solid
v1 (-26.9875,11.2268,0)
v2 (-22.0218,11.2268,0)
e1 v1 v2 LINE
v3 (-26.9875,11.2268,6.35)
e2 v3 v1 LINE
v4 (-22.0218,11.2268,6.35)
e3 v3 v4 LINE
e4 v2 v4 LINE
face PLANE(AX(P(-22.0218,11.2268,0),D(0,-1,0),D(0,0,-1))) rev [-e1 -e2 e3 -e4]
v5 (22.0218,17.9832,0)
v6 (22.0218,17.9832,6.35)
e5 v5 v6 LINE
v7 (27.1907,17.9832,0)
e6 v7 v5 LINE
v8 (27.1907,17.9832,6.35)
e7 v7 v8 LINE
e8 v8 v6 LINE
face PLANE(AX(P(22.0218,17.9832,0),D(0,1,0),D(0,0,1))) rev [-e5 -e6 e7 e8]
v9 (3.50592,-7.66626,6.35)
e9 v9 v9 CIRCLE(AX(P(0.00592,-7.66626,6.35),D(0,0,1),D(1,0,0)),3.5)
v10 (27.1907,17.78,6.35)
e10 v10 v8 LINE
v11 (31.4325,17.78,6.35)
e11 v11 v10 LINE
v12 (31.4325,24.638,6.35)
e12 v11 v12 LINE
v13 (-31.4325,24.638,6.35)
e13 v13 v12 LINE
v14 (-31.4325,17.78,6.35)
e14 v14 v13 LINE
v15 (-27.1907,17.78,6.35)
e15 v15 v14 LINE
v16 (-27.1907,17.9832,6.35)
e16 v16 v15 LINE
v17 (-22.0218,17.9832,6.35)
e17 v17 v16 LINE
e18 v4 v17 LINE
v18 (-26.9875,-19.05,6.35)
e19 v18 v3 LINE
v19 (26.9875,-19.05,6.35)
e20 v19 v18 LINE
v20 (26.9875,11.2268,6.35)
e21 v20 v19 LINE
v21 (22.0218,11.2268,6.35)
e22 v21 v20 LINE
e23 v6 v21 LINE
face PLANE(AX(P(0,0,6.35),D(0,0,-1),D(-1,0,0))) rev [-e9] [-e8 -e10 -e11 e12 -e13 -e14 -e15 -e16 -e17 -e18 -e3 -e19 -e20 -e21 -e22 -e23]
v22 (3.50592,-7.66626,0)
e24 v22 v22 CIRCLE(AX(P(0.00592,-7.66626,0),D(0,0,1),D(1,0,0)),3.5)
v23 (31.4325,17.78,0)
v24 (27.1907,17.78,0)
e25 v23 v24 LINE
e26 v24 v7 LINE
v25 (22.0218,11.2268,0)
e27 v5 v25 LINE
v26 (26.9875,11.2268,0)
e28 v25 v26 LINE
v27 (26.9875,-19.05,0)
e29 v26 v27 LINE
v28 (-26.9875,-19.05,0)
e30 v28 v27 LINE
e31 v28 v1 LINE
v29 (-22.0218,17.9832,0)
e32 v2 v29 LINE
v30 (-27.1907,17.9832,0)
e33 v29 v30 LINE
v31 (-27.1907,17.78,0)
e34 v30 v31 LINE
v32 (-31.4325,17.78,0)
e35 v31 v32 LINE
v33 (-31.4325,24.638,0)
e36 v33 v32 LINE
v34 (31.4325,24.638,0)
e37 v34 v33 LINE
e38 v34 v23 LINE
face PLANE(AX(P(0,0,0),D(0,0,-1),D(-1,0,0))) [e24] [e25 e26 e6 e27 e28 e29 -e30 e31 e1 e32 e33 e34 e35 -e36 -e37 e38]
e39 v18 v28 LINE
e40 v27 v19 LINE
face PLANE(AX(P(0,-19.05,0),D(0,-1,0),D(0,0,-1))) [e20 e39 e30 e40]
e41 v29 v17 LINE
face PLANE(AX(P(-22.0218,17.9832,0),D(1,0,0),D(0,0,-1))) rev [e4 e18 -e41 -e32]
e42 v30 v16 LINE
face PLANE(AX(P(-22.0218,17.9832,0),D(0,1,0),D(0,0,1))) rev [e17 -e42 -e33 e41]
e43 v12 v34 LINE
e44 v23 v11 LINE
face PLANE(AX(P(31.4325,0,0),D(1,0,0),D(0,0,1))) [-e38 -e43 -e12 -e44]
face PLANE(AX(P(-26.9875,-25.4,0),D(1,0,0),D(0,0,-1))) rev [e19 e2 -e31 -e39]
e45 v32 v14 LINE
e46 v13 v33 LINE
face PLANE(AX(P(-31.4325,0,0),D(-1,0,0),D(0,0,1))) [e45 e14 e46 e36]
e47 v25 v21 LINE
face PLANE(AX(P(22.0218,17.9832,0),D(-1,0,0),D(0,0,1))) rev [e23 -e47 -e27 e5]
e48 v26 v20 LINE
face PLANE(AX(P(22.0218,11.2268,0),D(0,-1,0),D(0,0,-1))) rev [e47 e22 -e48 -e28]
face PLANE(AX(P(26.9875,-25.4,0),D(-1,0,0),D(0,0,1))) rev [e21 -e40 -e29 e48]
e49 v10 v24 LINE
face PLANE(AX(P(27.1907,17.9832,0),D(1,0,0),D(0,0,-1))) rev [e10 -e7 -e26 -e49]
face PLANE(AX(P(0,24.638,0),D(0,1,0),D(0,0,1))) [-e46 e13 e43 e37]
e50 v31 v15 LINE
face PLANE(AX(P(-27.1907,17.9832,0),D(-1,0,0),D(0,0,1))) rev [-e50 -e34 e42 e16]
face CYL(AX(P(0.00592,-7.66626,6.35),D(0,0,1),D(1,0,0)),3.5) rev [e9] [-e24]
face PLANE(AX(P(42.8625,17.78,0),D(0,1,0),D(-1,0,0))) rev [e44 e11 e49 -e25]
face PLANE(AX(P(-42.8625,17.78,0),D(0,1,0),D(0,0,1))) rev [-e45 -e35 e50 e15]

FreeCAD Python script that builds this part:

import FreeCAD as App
import Part
import Sketcher
Q = App.Units.Quantity

doc = App.newDocument("Part")
body = doc.addObject("PartDesign::Body", "Body")

sketch1 = body.newObject("Sketcher::SketchObject", "Sketch")
sketch1.AttachmentSupport = (doc.getObject("XY_Plane"), [""])
sketch1.MapMode = "FlatFace"
sketch1.addGeometry(Part.LineSegment(App.Vector(-43, 25, 0), App.Vector(-43, -25, 0)), False)
sketch1.addGeometry(Part.LineSegment(App.Vector(-43, -25, 0), App.Vector(43, -25, 0)), False)
sketch1.addGeometry(Part.LineSegment(App.Vector(43, -25, 0), App.Vector(43, 25, 0)), False)
sketch1.addGeometry(Part.LineSegment(App.Vector(43, 25, 0), App.Vector(-43, 25, 0)), False)
sketch1.addConstraint(Sketcher.Constraint("Coincident", 0, 2, 1, 1))
sketch1.addConstraint(Sketcher.Constraint("Coincident", 1, 2, 2, 1))
sketch1.addConstraint(Sketcher.Constraint("Coincident", 2, 2, 3, 1))
sketch1.addConstraint(Sketcher.Constraint("Coincident", 3, 2, 0, 1))
sketch1.addConstraint(Sketcher.Constraint("Vertical", 0))
sketch1.addConstraint(Sketcher.Constraint("Horizontal", 1))
sketch1.addConstraint(Sketcher.Constraint("Vertical", 2))
sketch1.addConstraint(Sketcher.Constraint("Horizontal", 3))
sketch1.addConstraint(Sketcher.Constraint("Symmetric", 0, 2, 2, 2, -1, 1))
sketch1.addConstraint(Sketcher.Constraint("DistanceY", 0, 2, 0, 1, Q("2 in")))
sketch1.addConstraint(Sketcher.Constraint("DistanceX", 1, 1, 1, 2, Q("3.375 in")))
pad1 = body.newObject("PartDesign::Pad", "Pad")
pad1.Profile = sketch1
pad1.Length = Q("0.25 in")

sketch2 = body.newObject("Sketcher::SketchObject", "Sketch001")
sketch2.AttachmentSupport = (doc.getObject("XY_Plane"), [""])
sketch2.MapMode = "FlatFace"
sketch2.AttachmentOffset = App.Placement(App.Vector(0, 0, 0.25 * 25.4), App.Rotation())
sketch2.addGeometry(Part.LineSegment(App.Vector(-43, 18, 0), App.Vector(-43, -25, 0)), False)
sketch2.addGeometry(Part.LineSegment(App.Vector(-43, -25, 0), App.Vector(-27, -25, 0)), False)
sketch2.addGeometry(Part.LineSegment(App.Vector(-27, -25, 0), App.Vector(-27, 18, 0)), False)
sketch2.addGeometry(Part.LineSegment(App.Vector(-27, 18, 0), App.Vector(-43, 18, 0)), False)
sketch2.addGeometry(Part.LineSegment(App.Vector(27, 18, 0), App.Vector(27, -25, 0)), False)
sketch2.addGeometry(Part.LineSegment(App.Vector(27, -25, 0), App.Vector(43, -25, 0)), False)
sketch2.addGeometry(Part.LineSegment(App.Vector(43, -25, 0), App.Vector(43, 18, 0)), False)
sketch2.addGeometry(Part.LineSegment(App.Vector(43, 18, 0), App.Vector(27, 18, 0)), False)
sketch2.addConstraint(Sketcher.Constraint("Coincident", 0, 2, 1, 1))
sketch2.addConstraint(Sketcher.Constraint("Coincident", 1, 2, 2, 1))
sketch2.addConstraint(Sketcher.Constraint("Coincident", 2, 2, 3, 1))
sketch2.addConstraint(Sketcher.Constraint("Coincident", 3, 2, 0, 1))
sketch2.addConstraint(Sketcher.Constraint("Coincident", 4, 2, 5, 1))
sketch2.addConstraint(Sketcher.Constraint("Coincident", 5, 2, 6, 1))
sketch2.addConstraint(Sketcher.Constraint("Coincident", 6, 2, 7, 1))
sketch2.addConstraint(Sketcher.Constraint("Coincident", 7, 2, 4, 1))
sketch2.addConstraint(Sketcher.Constraint("Vertical", 0))
sketch2.addConstraint(Sketcher.Constraint("Horizontal", 1))
sketch2.addConstraint(Sketcher.Constraint("Vertical", 2))
sketch2.addConstraint(Sketcher.Constraint("Horizontal", 3))
sketch2.addConstraint(Sketcher.Constraint("Vertical", 4))
sketch2.addConstraint(Sketcher.Constraint("Horizontal", 5))
sketch2.addConstraint(Sketcher.Constraint("Vertical", 6))
sketch2.addConstraint(Sketcher.Constraint("Horizontal", 7))
sketch2.addConstraint(Sketcher.Constraint("Symmetric", 1, 2, 4, 2, -2))
sketch2.addConstraint(Sketcher.Constraint("Symmetric", 3, 2, 6, 2, -2))
sketch2.addConstraint(Sketcher.Constraint("DistanceY", 0, 2, 0, 1, Q("1.7 in")))
sketch2.addConstraint(Sketcher.Constraint("DistanceY", 0, 2, -1, 1, Q("1 in")))
sketch2.addConstraint(Sketcher.Constraint("DistanceX", 1, 1, 1, 2, Q("0.625 in")))
sketch2.addConstraint(Sketcher.Constraint("DistanceX", 0, 2, 4, 2, Q("2.75 in")))
pocket1 = body.newObject("PartDesign::Pocket", "Pocket")
pocket1.Profile = sketch2
pocket1.Length = Q("0.25 in")

sketch3 = body.newObject("Sketcher::SketchObject", "Sketch002")
sketch3.AttachmentSupport = (doc.getObject("XZ_Plane"), [""])
sketch3.MapMode = "FlatFace"
sketch3.AttachmentOffset = App.Placement(App.Vector(0, 0, -1 * 25.4), App.Rotation())
sketch3.addGeometry(Part.LineSegment(App.Vector(-43, 0, 0), App.Vector(-43, 6, 0)), False)
sketch3.addGeometry(Part.LineSegment(App.Vector(-43, 6, 0), App.Vector(43, 6, 0)), False)
sketch3.addGeometry(Part.LineSegment(App.Vector(43, 6, 0), App.Vector(43, 0, 0)), False)
sketch3.addGeometry(Part.LineSegment(App.Vector(43, 0, 0), App.Vector(-43, 0, 0)), False)
sketch3.addConstraint(Sketcher.Constraint("Coincident", 0, 2, 1, 1))
sketch3.addConstraint(Sketcher.Constraint("Coincident", 1, 2, 2, 1))
sketch3.addConstraint(Sketcher.Constraint("Coincident", 2, 2, 3, 1))
sketch3.addConstraint(Sketcher.Constraint("Coincident", 3, 2, 0, 1))
sketch3.addConstraint(Sketcher.Constraint("Vertical", 0))
sketch3.addConstraint(Sketcher.Constraint("Horizontal", 1))
sketch3.addConstraint(Sketcher.Constraint("Vertical", 2))
sketch3.addConstraint(Sketcher.Constraint("Horizontal", 3))
sketch3.addConstraint(Sketcher.Constraint("Symmetric", 2, 2, 3, 2, -1, 1))
sketch3.addConstraint(Sketcher.Constraint("DistanceY", 0, 1, 0, 2, Q("0.25 in")))
sketch3.addConstraint(Sketcher.Constraint("DistanceX", 1, 1, 1, 2, Q("3.375 in")))
pocket2 = body.newObject("PartDesign::Pocket", "Pocket001")
pocket2.Profile = sketch3
pocket2.Length = Q("0.03 in")
pocket2.Reversed = True

sketch4 = body.newObject("Sketcher::SketchObject", "Sketch003")
sketch4.AttachmentSupport = (doc.getObject("YZ_Plane"), [""])
sketch4.MapMode = "FlatFace"
sketch4.AttachmentOffset = App.Placement(App.Vector(0, 0, -1.0625 * 25.4), App.Rotation())
sketch4.addGeometry(Part.LineSegment(App.Vector(18, 0, 0), App.Vector(11, 0, 0)), False)
sketch4.addGeometry(Part.LineSegment(App.Vector(11, 0, 0), App.Vector(11, 6, 0)), False)
sketch4.addGeometry(Part.LineSegment(App.Vector(11, 6, 0), App.Vector(18, 6, 0)), False)
sketch4.addGeometry(Part.LineSegment(App.Vector(18, 6, 0), App.Vector(18, 0, 0)), False)
sketch4.addConstraint(Sketcher.Constraint("Coincident", 0, 2, 1, 1))
sketch4.addConstraint(Sketcher.Constraint("Coincident", 1, 2, 2, 1))
sketch4.addConstraint(Sketcher.Constraint("Coincident", 2, 2, 3, 1))
sketch4.addConstraint(Sketcher.Constraint("Coincident", 3, 2, 0, 1))
sketch4.addConstraint(Sketcher.Constraint("Horizontal", 0))
sketch4.addConstraint(Sketcher.Constraint("Vertical", 1))
sketch4.addConstraint(Sketcher.Constraint("Horizontal", 2))
sketch4.addConstraint(Sketcher.Constraint("Vertical", 3))
sketch4.addConstraint(Sketcher.Constraint("PointOnObject", 0, 2, -1))
sketch4.addConstraint(Sketcher.Constraint("Equal", 2, 1))
sketch4.addConstraint(Sketcher.Constraint("DistanceX", 0, 2, 0, 1, Q("0.25 in")))
sketch4.addConstraint(Sketcher.Constraint("DistanceX", -1, 1, 2, 2, Q("0.7 in")))
pocket3 = body.newObject("PartDesign::Pocket", "Pocket002")
pocket3.Profile = sketch4
pocket3.Length = Q("0.1875 in")
pocket3.Reversed = True
doc.recompute()

mirrored = body.newObject("PartDesign::Mirrored", "Mirrored")
mirrored.Originals = [pocket3]
mirrored.MirrorPlane = (doc.getObject("YZ_Plane"), [""])
body.Tip = mirrored

sketch5 = body.newObject("Sketcher::SketchObject", "Sketch004")
sketch5.AttachmentSupport = (doc.getObject("YZ_Plane"), [""])
sketch5.MapMode = "FlatFace"
sketch5.AttachmentOffset = App.Placement(App.Vector(0, 0, -1.6875 * 25.4), App.Rotation())
sketch5.addGeometry(Part.LineSegment(App.Vector(25, 0, 0), App.Vector(18, 0, 0)), False)
sketch5.addGeometry(Part.LineSegment(App.Vector(18, 0, 0), App.Vector(18, 6, 0)), False)
sketch5.addGeometry(Part.LineSegment(App.Vector(18, 6, 0), App.Vector(25, 6, 0)), False)
sketch5.addGeometry(Part.LineSegment(App.Vector(25, 6, 0), App.Vector(25, 0, 0)), False)
sketch5.addConstraint(Sketcher.Constraint("Coincident", 0, 2, 1, 1))
sketch5.addConstraint(Sketcher.Constraint("Coincident", 1, 2, 2, 1))
sketch5.addConstraint(Sketcher.Constraint("Coincident", 2, 2, 3, 1))
sketch5.addConstraint(Sketcher.Constraint("Coincident", 3, 2, 0, 1))
sketch5.addConstraint(Sketcher.Constraint("Horizontal", 0))
sketch5.addConstraint(Sketcher.Constraint("Vertical", 1))
sketch5.addConstraint(Sketcher.Constraint("Horizontal", 2))
sketch5.addConstraint(Sketcher.Constraint("Vertical", 3))
sketch5.addConstraint(Sketcher.Constraint("PointOnObject", 0, 2, -1))
sketch5.addConstraint(Sketcher.Constraint("DistanceX", 0, 2, 0, 1, Q("0.27 in")))
sketch5.addConstraint(Sketcher.Constraint("DistanceY", 1, 1, 1, 2, Q("0.25 in")))
sketch5.addConstraint(Sketcher.Constraint("DistanceX", -1, 1, 0, 2, Q("0.7 in")))
pocket4 = body.newObject("PartDesign::Pocket", "Pocket003")
pocket4.Profile = sketch5
pocket4.Length = Q("0.45 in")
pocket4.Reversed = True
doc.recompute()

mirrored2 = body.newObject("PartDesign::Mirrored", "Mirrored001")
mirrored2.Originals = [pocket4]
mirrored2.MirrorPlane = (doc.getObject("YZ_Plane"), [""])
body.Tip = mirrored2

sketch6 = body.newObject("Sketcher::SketchObject", "Sketch005")
sketch6.AttachmentSupport = (doc.getObject("XZ_Plane"), [""])
sketch6.MapMode = "FlatFace"
sketch6.AttachmentOffset = App.Placement(App.Vector(0, 0, 1 * 25.4), App.Rotation())
sketch6.addGeometry(Part.LineSegment(App.Vector(-27, 6, 0), App.Vector(-27, 0, 0)), False)
sketch6.addGeometry(Part.LineSegment(App.Vector(-27, 0, 0), App.Vector(27, 0, 0)), False)
sketch6.addGeometry(Part.LineSegment(App.Vector(27, 0, 0), App.Vector(27, 6, 0)), False)
sketch6.addGeometry(Part.LineSegment(App.Vector(27, 6, 0), App.Vector(-27, 6, 0)), False)
sketch6.addConstraint(Sketcher.Constraint("Coincident", 0, 2, 1, 1))
sketch6.addConstraint(Sketcher.Constraint("Coincident", 1, 2, 2, 1))
sketch6.addConstraint(Sketcher.Constraint("Coincident", 2, 2, 3, 1))
sketch6.addConstraint(Sketcher.Constraint("Coincident", 3, 2, 0, 1))
sketch6.addConstraint(Sketcher.Constraint("Vertical", 0))
sketch6.addConstraint(Sketcher.Constraint("Horizontal", 1))
sketch6.addConstraint(Sketcher.Constraint("Vertical", 2))
sketch6.addConstraint(Sketcher.Constraint("Horizontal", 3))
sketch6.addConstraint(Sketcher.Constraint("Symmetric", 0, 2, 1, 2, -1, 1))
sketch6.addConstraint(Sketcher.Constraint("DistanceY", 0, 2, 0, 1, Q("0.25 in")))
sketch6.addConstraint(Sketcher.Constraint("DistanceX", 1, 1, 1, 2, Q("2.125 in")))
pocket5 = body.newObject("PartDesign::Pocket", "Pocket004")
pocket5.Profile = sketch6
pocket5.Length = Q("0.25 in")

sketch7 = body.newObject("Sketcher::SketchObject", "Sketch006")
sketch7.AttachmentSupport = (doc.getObject("XY_Plane"), [""])
sketch7.MapMode = "FlatFace"
sketch7.AttachmentOffset = App.Placement(App.Vector(0, 0, 0.25 * 25.4), App.Rotation())
sketch7.addGeometry(Part.Circle(App.Vector(0, -7.7, 0), App.Vector(0, 0, 1), 3.5), False)
sketch7.addConstraint(Sketcher.Constraint("Diameter", 0, Q("7 mm")))
sketch7.addConstraint(Sketcher.Constraint("DistanceX", -1, 1, 0, 3, Q("0.00592 mm")))
sketch7.addConstraint(Sketcher.Constraint("DistanceY", 0, 3, -1, 1, Q("7.66626 mm")))
doc.recompute()
hole = body.newObject("PartDesign::Hole", "Hole")
hole.Profile = sketch7
hole.ThreadType = "None"
hole.Diameter = 7
hole.DepthType = "ThroughAll"

sketch8 = body.newObject("Sketcher::SketchObject", "Sketch007")
sketch8.AttachmentSupport = (doc.getObject("XY_Plane"), [""])
sketch8.MapMode = "FlatFace"
sketch8.AttachmentOffset = App.Placement(App.Vector(0, 0, 0.25 * 25.4), App.Rotation())
sketch8.addGeometry(Part.LineSegment(App.Vector(-27, 18, 0), App.Vector(-27, 11, 0)), False)
sketch8.addGeometry(Part.LineSegment(App.Vector(-27, 11, 0), App.Vector(-22, 11, 0)), False)
sketch8.addGeometry(Part.LineSegment(App.Vector(-22, 11, 0), App.Vector(-22, 18, 0)), False)
sketch8.addGeometry(Part.LineSegment(App.Vector(-22, 18, 0), App.Vector(-27, 18, 0)), False)
sketch8.addGeometry(Part.LineSegment(App.Vector(22, 18, 0), App.Vector(22, 11, 0)), False)
sketch8.addGeometry(Part.LineSegment(App.Vector(22, 11, 0), App.Vector(27, 11, 0)), False)
sketch8.addGeometry(Part.LineSegment(App.Vector(27, 11, 0), App.Vector(27, 18, 0)), False)
sketch8.addGeometry(Part.LineSegment(App.Vector(27, 18, 0), App.Vector(22, 18, 0)), False)
sketch8.addConstraint(Sketcher.Constraint("Coincident", 0, 2, 1, 1))
sketch8.addConstraint(Sketcher.Constraint("Coincident", 1, 2, 2, 1))
sketch8.addConstraint(Sketcher.Constraint("Coincident", 2, 2, 3, 1))
sketch8.addConstraint(Sketcher.Constraint("Coincident", 3, 2, 0, 1))
sketch8.addConstraint(Sketcher.Constraint("Coincident", 4, 2, 5, 1))
sketch8.addConstraint(Sketcher.Constraint("Coincident", 5, 2, 6, 1))
sketch8.addConstraint(Sketcher.Constraint("Coincident", 6, 2, 7, 1))
sketch8.addConstraint(Sketcher.Constraint("Coincident", 7, 2, 4, 1))
sketch8.addConstraint(Sketcher.Constraint("Vertical", 0))
sketch8.addConstraint(Sketcher.Constraint("Horizontal", 1))
sketch8.addConstraint(Sketcher.Constraint("Vertical", 2))
sketch8.addConstraint(Sketcher.Constraint("Horizontal", 3))
sketch8.addConstraint(Sketcher.Constraint("Vertical", 4))
sketch8.addConstraint(Sketcher.Constraint("Horizontal", 5))
sketch8.addConstraint(Sketcher.Constraint("Vertical", 6))
sketch8.addConstraint(Sketcher.Constraint("Horizontal", 7))
sketch8.addConstraint(Sketcher.Constraint("Symmetric", 1, 2, 4, 2, -2))
sketch8.addConstraint(Sketcher.Constraint("Symmetric", 3, 2, 6, 2, -2))
sketch8.addConstraint(Sketcher.Constraint("DistanceY", 0, 2, 0, 1, Q("0.266 in")))
sketch8.addConstraint(Sketcher.Constraint("DistanceX", 1, 1, 1, 2, Q("0.2035 in")))
sketch8.addConstraint(Sketcher.Constraint("DistanceY", -1, 1, 0, 2, Q("0.442 in")))
sketch8.addConstraint(Sketcher.Constraint("DistanceX", 1, 2, -1, 1, Q("0.867 in")))
pocket6 = body.newObject("PartDesign::Pocket", "Pocket005")
pocket6.Profile = sketch8
pocket6.Type = "ThroughAll"

doc.recompute()
